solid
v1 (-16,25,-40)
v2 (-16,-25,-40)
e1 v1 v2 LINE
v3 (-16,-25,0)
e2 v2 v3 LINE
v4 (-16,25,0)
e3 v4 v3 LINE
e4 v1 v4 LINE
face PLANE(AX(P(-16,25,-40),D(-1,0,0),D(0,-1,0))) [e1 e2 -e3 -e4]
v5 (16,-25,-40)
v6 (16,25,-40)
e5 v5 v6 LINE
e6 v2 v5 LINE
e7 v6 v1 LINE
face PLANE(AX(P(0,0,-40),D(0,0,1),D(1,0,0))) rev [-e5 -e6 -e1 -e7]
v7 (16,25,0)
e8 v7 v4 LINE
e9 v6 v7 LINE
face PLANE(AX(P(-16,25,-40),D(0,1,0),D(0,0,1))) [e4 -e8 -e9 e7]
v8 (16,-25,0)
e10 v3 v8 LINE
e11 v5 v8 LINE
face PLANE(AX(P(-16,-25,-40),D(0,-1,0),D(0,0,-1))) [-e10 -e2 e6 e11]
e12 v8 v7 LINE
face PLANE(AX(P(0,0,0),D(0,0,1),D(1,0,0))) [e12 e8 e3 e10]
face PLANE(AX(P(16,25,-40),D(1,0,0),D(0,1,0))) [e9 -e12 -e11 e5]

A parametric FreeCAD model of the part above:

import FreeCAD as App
import Part
import Sketcher

V = App.Vector
Q = App.Units.Quantity


def add_polygon(sketch, points):
    """Adds a closed chain of lines whose ends are joined by coincident constraints."""
    first, n = sketch.GeometryCount, len(points)
    for a, b in zip(points, points[1:] + points[:1]):
        sketch.addGeometry(Part.LineSegment(App.Vector(*a, 0), App.Vector(*b, 0)), False)
    for i in range(n):
        sketch.addConstraint(Sketcher.Constraint("Coincident", first + i, 2, first + (i + 1) % n, 1))

doc = App.newDocument("Part")
params = doc.addObject("Spreadsheet::Sheet", "Params")
for row, (alias, value) in enumerate([
    ("sketch1_width", "32 mm"),
    ("sketch1_height", "50 mm"),
    ("pad1_length", "40 mm"),
], start=1):
    params.set(f"A{row}", alias)
    params.set(f"B{row}", "=" + value)
    params.setAlias(f"B{row}", alias)

body = doc.addObject("PartDesign::Body", "Body")

sketch1 = body.newObject("Sketcher::SketchObject", "Sketch")
sketch1.AttachmentSupport = (doc.getObject("XY_Plane"), [""])
sketch1.MapMode = "FlatFace"
add_polygon(sketch1, [(-16, 25), (-16, -25), (16, -25), (16, 25)])
sketch1.addConstraint([
    Sketcher.Constraint("Vertical", 0),
    Sketcher.Constraint("Horizontal", 1),
    Sketcher.Constraint("Vertical", 2),
    Sketcher.Constraint("Horizontal", 3),
    Sketcher.Constraint("Symmetric", 0, 2, 2, 2, -1, 1),
    Sketcher.Constraint("DistanceX", 1, 1, 1, 2, Q("32 mm")),
    Sketcher.Constraint("DistanceY", 0, 2, 0, 1, Q("50 mm")),
])
sketch1.setExpression("Constraints[9]", "Params.sketch1_width")
sketch1.setExpression("Constraints[10]", "Params.sketch1_height")
pad1 = body.newObject("PartDesign::Pad", "Pad")
pad1.Profile = sketch1
pad1.setExpression("Length", "Params.pad1_length")
pad1.Reversed = True

doc.recompute()
